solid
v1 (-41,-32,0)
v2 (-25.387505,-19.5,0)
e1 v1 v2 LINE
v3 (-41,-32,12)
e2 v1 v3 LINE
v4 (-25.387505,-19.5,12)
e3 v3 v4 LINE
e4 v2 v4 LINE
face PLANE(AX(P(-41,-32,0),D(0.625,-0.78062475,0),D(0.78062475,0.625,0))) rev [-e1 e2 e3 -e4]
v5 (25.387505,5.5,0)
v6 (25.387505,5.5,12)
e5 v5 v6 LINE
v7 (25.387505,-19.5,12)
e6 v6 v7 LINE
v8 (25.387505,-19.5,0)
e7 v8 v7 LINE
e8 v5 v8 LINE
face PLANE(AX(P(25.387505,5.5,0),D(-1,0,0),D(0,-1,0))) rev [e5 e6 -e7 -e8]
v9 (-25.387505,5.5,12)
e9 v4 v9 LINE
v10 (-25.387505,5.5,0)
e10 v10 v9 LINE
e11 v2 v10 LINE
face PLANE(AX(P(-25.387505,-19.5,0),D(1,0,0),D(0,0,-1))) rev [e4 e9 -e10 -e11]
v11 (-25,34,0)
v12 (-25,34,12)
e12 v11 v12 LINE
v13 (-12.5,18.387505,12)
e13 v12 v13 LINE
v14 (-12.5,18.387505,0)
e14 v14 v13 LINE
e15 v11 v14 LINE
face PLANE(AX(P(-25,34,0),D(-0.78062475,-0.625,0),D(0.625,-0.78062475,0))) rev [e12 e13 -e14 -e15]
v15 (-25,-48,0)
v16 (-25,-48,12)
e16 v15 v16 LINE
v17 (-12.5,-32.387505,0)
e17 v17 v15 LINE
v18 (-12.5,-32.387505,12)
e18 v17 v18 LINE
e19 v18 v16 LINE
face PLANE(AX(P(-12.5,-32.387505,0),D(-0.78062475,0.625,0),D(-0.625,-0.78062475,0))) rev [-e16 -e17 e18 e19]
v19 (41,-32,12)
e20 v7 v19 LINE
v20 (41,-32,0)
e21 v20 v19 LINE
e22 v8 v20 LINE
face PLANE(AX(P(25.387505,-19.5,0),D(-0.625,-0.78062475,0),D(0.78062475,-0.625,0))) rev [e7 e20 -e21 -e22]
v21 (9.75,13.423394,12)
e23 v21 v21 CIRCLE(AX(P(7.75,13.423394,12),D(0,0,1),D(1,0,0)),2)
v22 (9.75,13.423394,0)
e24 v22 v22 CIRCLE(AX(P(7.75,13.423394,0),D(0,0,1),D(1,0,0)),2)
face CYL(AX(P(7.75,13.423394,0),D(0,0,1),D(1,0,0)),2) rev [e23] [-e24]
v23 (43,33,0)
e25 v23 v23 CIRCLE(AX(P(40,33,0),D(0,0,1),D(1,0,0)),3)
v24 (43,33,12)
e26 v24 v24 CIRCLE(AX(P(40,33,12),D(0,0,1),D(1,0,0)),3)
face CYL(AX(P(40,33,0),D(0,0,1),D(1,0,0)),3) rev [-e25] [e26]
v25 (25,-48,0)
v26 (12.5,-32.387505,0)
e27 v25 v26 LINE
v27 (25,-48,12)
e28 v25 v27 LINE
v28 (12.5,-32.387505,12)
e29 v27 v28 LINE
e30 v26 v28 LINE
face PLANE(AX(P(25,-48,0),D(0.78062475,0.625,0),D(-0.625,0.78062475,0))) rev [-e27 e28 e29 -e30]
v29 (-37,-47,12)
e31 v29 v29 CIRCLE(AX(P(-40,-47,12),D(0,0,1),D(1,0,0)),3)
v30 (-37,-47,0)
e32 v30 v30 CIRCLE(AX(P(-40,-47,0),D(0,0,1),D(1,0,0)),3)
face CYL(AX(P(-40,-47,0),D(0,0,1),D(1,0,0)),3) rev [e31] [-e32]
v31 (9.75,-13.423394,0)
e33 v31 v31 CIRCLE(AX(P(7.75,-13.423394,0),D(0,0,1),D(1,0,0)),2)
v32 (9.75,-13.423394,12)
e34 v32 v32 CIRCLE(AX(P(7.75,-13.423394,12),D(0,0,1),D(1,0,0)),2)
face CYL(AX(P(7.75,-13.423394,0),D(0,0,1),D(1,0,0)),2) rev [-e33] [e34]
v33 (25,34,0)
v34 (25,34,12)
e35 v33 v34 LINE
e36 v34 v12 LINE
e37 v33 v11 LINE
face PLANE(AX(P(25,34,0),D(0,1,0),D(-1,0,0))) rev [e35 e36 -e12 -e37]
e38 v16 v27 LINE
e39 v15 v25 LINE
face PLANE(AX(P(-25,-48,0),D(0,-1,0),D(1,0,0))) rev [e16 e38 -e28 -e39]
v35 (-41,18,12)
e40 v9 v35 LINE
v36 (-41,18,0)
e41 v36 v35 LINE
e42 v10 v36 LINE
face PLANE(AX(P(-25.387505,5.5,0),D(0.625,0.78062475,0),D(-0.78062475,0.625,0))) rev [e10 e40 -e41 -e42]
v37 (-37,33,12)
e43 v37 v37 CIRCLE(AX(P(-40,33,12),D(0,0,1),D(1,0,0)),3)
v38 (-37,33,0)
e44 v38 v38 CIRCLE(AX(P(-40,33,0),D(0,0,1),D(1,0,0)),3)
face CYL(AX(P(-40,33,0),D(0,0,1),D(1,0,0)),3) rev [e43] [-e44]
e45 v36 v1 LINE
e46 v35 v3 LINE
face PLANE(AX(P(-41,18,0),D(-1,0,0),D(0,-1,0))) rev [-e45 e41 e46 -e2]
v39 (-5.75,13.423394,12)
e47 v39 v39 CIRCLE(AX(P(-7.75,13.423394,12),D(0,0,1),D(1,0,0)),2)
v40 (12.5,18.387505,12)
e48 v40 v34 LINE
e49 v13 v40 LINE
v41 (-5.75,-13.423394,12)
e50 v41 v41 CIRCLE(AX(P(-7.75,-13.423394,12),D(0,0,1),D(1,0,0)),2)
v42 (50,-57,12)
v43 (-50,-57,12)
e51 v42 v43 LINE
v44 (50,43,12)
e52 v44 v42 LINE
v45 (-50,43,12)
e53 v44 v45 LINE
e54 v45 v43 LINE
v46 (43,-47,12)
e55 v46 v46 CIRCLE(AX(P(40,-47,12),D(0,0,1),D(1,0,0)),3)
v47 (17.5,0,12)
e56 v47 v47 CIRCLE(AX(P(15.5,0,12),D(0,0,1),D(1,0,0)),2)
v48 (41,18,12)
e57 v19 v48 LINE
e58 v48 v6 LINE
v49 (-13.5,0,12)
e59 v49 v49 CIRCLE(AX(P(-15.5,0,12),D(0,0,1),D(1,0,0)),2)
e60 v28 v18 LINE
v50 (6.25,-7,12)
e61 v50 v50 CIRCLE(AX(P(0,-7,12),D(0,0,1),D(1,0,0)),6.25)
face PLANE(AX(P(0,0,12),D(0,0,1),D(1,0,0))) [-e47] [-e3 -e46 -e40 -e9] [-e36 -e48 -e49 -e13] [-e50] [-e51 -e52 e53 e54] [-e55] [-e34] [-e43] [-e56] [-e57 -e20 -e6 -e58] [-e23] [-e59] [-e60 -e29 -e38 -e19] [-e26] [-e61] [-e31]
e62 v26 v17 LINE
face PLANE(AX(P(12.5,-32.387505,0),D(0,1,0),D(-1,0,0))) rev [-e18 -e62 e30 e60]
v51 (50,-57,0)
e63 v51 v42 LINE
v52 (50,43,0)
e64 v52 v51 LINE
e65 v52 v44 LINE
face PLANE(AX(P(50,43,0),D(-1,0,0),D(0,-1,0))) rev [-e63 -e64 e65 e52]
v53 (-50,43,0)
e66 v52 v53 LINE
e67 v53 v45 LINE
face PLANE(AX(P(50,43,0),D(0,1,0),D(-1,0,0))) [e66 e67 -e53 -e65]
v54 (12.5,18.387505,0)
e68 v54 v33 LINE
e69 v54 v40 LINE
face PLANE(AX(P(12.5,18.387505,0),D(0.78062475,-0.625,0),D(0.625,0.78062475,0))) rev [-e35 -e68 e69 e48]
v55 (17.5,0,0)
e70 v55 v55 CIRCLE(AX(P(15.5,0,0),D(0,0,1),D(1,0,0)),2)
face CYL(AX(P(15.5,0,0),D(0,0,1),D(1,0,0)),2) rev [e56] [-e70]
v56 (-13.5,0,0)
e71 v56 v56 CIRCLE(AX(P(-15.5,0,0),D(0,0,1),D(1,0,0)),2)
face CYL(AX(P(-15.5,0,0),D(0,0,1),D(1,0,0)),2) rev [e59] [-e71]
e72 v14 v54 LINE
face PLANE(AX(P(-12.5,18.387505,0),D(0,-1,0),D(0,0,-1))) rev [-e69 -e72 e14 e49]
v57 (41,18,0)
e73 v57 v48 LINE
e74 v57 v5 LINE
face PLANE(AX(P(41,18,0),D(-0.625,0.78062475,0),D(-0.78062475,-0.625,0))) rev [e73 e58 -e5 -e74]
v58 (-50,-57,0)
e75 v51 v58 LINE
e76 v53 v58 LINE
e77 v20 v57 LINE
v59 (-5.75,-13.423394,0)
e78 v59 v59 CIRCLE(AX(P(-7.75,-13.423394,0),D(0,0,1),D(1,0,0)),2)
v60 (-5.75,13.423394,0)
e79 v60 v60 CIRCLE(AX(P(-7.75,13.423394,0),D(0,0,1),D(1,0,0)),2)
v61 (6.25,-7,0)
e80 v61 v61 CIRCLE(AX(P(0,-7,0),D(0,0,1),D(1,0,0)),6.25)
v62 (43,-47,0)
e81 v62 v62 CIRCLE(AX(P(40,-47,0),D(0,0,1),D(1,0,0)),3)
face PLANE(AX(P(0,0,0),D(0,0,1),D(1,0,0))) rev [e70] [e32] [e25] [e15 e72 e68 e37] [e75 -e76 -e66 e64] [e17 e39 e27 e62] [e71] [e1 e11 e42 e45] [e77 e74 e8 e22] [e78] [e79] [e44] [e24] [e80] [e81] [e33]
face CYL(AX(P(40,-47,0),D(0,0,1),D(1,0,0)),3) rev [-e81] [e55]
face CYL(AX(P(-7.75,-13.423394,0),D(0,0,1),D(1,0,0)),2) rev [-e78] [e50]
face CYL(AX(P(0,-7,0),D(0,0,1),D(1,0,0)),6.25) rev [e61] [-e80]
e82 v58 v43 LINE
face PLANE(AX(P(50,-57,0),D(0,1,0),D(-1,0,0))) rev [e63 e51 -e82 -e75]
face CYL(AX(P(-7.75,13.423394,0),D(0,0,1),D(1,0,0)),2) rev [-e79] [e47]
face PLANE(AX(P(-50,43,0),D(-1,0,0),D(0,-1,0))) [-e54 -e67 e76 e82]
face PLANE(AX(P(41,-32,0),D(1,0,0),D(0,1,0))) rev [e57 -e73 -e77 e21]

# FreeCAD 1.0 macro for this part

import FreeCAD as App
import Part
import Sketcher

V = App.Vector


def add_polygon(sketch, points):
    """Adds a closed chain of lines whose ends are joined by coincident constraints."""
    first, n = sketch.GeometryCount, len(points)
    for a, b in zip(points, points[1:] + points[:1]):
        sketch.addGeometry(Part.LineSegment(App.Vector(*a, 0), App.Vector(*b, 0)), False)
    for i in range(n):
        sketch.addConstraint(Sketcher.Constraint("Coincident", first + i, 2, first + (i + 1) % n, 1))

doc = App.newDocument("Part")
body = doc.addObject("PartDesign::Body", "Body")

# Sketch on XY plane
sketch1 = body.newObject("Sketcher::SketchObject", "Sketch")
sketch1.AttachmentSupport = (doc.getObject("XY_Plane"), [""])
sketch1.MapMode = "FlatFace"
sketch1.addGeometry(Part.Circle(V(0, 0, 0), V(0, 0, 1), 18), False)
sketch1.addConstraint(Sketcher.Constraint("Coincident", 0, 3, -1, 1))
sketch1.addConstraint(Sketcher.Constraint("Diameter", 0, 37.0))
pad1 = body.newObject("PartDesign::Pad", "Pad")
pad1.Profile = sketch1
pad1.Length = 12

# Sketch on XY plane
sketch2 = body.newObject("Sketcher::SketchObject", "Sketch001")
sketch2.AttachmentSupport = (doc.getObject("XY_Plane"), [""])
sketch2.MapMode = "FlatFace"
sketch2.AttachmentOffset = App.Placement(V(0, 0, 12), App.Rotation())
sketch2.addGeometry(Part.Circle(V(15.5, 0, 0), V(0, 0, 1), 2), False)
sketch2.addGeometry(Part.Circle(V(7.8, -13.4, 0), V(0, 0, 1), 2), False)
sketch2.addGeometry(Part.Circle(V(-7.8, -13.4, 0), V(0, 0, 1), 2), False)
sketch2.addGeometry(Part.Circle(V(-15.5, 0, 0), V(0, 0, 1), 2), False)
sketch2.addGeometry(Part.Circle(V(-7.8, 13.4, 0), V(0, 0, 1), 2), False)
sketch2.addGeometry(Part.Circle(V(7.8, 13.4, 0), V(0, 0, 1), 2), False)
sketch2.addConstraint(Sketcher.Constraint("Equal", 0, 1))
sketch2.addConstraint(Sketcher.Constraint("Equal", 1, 2))
sketch2.addConstraint(Sketcher.Constraint("Equal", 2, 3))
sketch2.addConstraint(Sketcher.Constraint("Equal", 3, 4))
sketch2.addConstraint(Sketcher.Constraint("Equal", 4, 5))
sketch2.addConstraint(Sketcher.Constraint("Symmetric", 0, 3, 3, 3, -1, 1))
sketch2.addConstraint(Sketcher.Constraint("Symmetric", 1, 3, 4, 3, -1, 1))
sketch2.addConstraint(Sketcher.Constraint("Symmetric", 2, 3, 5, 3, -1, 1))
sketch2.addConstraint(Sketcher.Constraint("Symmetric", 1, 3, 2, 3, -2))
sketch2.addConstraint(Sketcher.Constraint("PointOnObject", 0, 3, -1))
sketch2.addConstraint(Sketcher.Constraint("Diameter", 0, 4.0))
sketch2.addConstraint(Sketcher.Constraint("DistanceX", 3, 3, 0, 3, 31.0))
sketch2.addConstraint(Sketcher.Constraint("DistanceX", 2, 3, 1, 3, 15.5))
sketch2.addConstraint(Sketcher.Constraint("DistanceY", 1, 3, -1, 1, 13.423394))
pocket1 = body.newObject("PartDesign::Pocket", "Pocket")
pocket1.Profile = sketch2
pocket1.Type = "ThroughAll"

# Sketch on XY plane
sketch3 = body.newObject("Sketcher::SketchObject", "Sketch002")
sketch3.AttachmentSupport = (doc.getObject("XY_Plane"), [""])
sketch3.MapMode = "FlatFace"
sketch3.AttachmentOffset = App.Placement(V(0, 0, 12), App.Rotation())
sketch3.addGeometry(Part.Circle(V(0, -7, 0), V(0, 0, 1), 6), False)
sketch3.addConstraint(Sketcher.Constraint("PointOnObject", 0, 3, -2))
sketch3.addConstraint(Sketcher.Constraint("Diameter", 0, 12.5))
sketch3.addConstraint(Sketcher.Constraint("DistanceY", 0, 3, -1, 1, 7.0))
pocket2 = body.newObject("PartDesign::Pocket", "Pocket001")
pocket2.Profile = sketch3
pocket2.Type = "ThroughAll"

# Sketch on XY plane
sketch4 = body.newObject("Sketcher::SketchObject", "Sketch003")
sketch4.AttachmentSupport = (doc.getObject("XY_Plane"), [""])
sketch4.MapMode = "FlatFace"
sketch4.AttachmentOffset = App.Placement(V(0, 0, 12), App.Rotation())
add_polygon(sketch4, [(-50, 43), (-50, -57), (50, -57), (50, 43)])  # lines 0-3
sketch4.addGeometry(Part.Circle(V(0, 0, 0), V(0, 0, 1), 18), False)  # 4
sketch4.addConstraint(Sketcher.Constraint("Vertical", 0))
sketch4.addConstraint(Sketcher.Constraint("Horizontal", 1))
sketch4.addConstraint(Sketcher.Constraint("Vertical", 2))
sketch4.addConstraint(Sketcher.Constraint("Horizontal", 3))
sketch4.addConstraint(Sketcher.Constraint("Coincident", 4, 3, -1, 1))
sketch4.addConstraint(Sketcher.Constraint("Equal", 3, 0))
sketch4.addConstraint(Sketcher.Constraint("Diameter", 4, 37.0))
sketch4.addConstraint(Sketcher.Constraint("DistanceX", 1, 1, 1, 2, 100.0))
sketch4.addConstraint(Sketcher.Constraint("DistanceX", 0, 2, -1, 1, 50.0))
sketch4.addConstraint(Sketcher.Constraint("DistanceY", 0, 2, -1, 1, 57.0))
pad2 = body.newObject("PartDesign::Pad", "Pad001")
pad2.Profile = sketch4
pad2.Length = 12
pad2.Reversed = True

# Sketch on XY plane
sketch5 = body.newObject("Sketcher::SketchObject", "Sketch004")
sketch5.AttachmentSupport = (doc.getObject("XY_Plane"), [""])
sketch5.MapMode = "FlatFace"
sketch5.AttachmentOffset = App.Placement(V(0, 0, 12), App.Rotation())
sketch5.addGeometry(Part.Circle(V(-40, 33, 0), V(0, 0, 1), 3), False)
sketch5.addGeometry(Part.Circle(V(40, 33, 0), V(0, 0, 1), 3), False)
sketch5.addGeometry(Part.Circle(V(40, -47, 0), V(0, 0, 1), 3), False)
sketch5.addGeometry(Part.Circle(V(-40, -47, 0), V(0, 0, 1), 3), False)
sketch5.addConstraint(Sketcher.Constraint("Equal", 0, 1))
sketch5.addConstraint(Sketcher.Constraint("Equal", 1, 2))
sketch5.addConstraint(Sketcher.Constraint("Equal", 2, 3))
sketch5.addConstraint(Sketcher.Constraint("Symmetric", 0, 3, 1, 3, -2))
sketch5.addConstraint(Sketcher.Constraint("Symmetric", 2, 3, 3, 3, -2))
sketch5.addConstraint(Sketcher.Constraint("Vertical", 1, 3, 2, 3))
sketch5.addConstraint(Sketcher.Constraint("Diameter", 0, 6.0))
sketch5.addConstraint(Sketcher.Constraint("DistanceX", 0, 3, -1, 1, 40.0))
sketch5.addConstraint(Sketcher.Constraint("DistanceY", -1, 1, 0, 3, 33.0))
sketch5.addConstraint(Sketcher.Constraint("DistanceY", 2, 3, -1, 1, 47.0))
pocket3 = body.newObject("PartDesign::Pocket", "Pocket002")
pocket3.Profile = sketch5
pocket3.Length = 12

# Sketch on XY plane
sketch6 = body.newObject("Sketcher::SketchObject", "Sketch005")
sketch6.AttachmentSupport = (doc.getObject("XY_Plane"), [""])
sketch6.MapMode = "FlatFace"
sketch6.AttachmentOffset = App.Placement(V(0, 0, 12), App.Rotation())
add_polygon(sketch6, [(-41, 18), (-41, -32), (-25, -20), (-25, 6)])  # lines 0-3
add_polygon(sketch6, [(12, 18), (25, 34), (-25, 34), (-12, 18)])  # lines 4-7
add_polygon(sketch6, [(25, -20), (41, -32), (41, 18), (25, 6)])  # lines 8-11
add_polygon(sketch6, [(-12, -32), (-25, -48), (25, -48), (12, -32)])  # lines 12-15
sketch6.addConstraint(Sketcher.Constraint("Vertical", 0))
sketch6.addConstraint(Sketcher.Constraint("Vertical", 2))
sketch6.addConstraint(Sketcher.Constraint("Horizontal", 5))
sketch6.addConstraint(Sketcher.Constraint("Horizontal", 7))
sketch6.addConstraint(Sketcher.Constraint("Vertical", 9))
sketch6.addConstraint(Sketcher.Constraint("Vertical", 11))
sketch6.addConstraint(Sketcher.Constraint("Horizontal", 13))
sketch6.addConstraint(Sketcher.Constraint("Horizontal", 15))
sketch6.addConstraint(Sketcher.Constraint("Symmetric", 0, 2, 8, 2, -2))
sketch6.addConstraint(Sketcher.Constraint("Symmetric", 2, 2, 10, 2, -2))
sketch6.addConstraint(Sketcher.Constraint("Perpendicular", 3, 4))
sketch6.addConstraint(Sketcher.Constraint("Perpendicular", 1, 6))
sketch6.addConstraint(Sketcher.Constraint("Perpendicular", 4, 8))
sketch6.addConstraint(Sketcher.Constraint("Perpendicular", 6, 10))
sketch6.addConstraint(Sketcher.Constraint("Perpendicular", 8, 12))
sketch6.addConstraint(Sketcher.Constraint("Perpendicular", 10, 14))
sketch6.addConstraint(Sketcher.Constraint("Horizontal", 3, 2, 9, 2))
sketch6.addConstraint(Sketcher.Constraint("Vertical", 5, 2, 12, 2))
sketch6.addConstraint(Sketcher.Constraint("Vertical", 4, 2, 13, 2))
sketch6.addConstraint(Sketcher.Constraint("Vertical", 7, 2, 14, 2))
sketch6.addConstraint(Sketcher.Constraint("Equal", 13, 0))
sketch6.addConstraint(Sketcher.Constraint("Equal", 15, 2))
sketch6.addConstraint(Sketcher.Constraint("DistanceX", 5, 2, 5, 1, 50.0))
sketch6.addConstraint(Sketcher.Constraint("DistanceX", 7, 1, 7, 2, 25.0))
sketch6.addConstraint(Sketcher.Constraint("Distance", 1, 20.0))
sketch6.addConstraint(Sketcher.Constraint("DistanceX", 0, 2, -1, 1, 41.0))
sketch6.addConstraint(Sketcher.Constraint("DistanceY", 0, 2, -1, 1, 32.0))
sketch6.addConstraint(Sketcher.Constraint("DistanceX", -1, 1, 4, 2, 25.0))
sketch6.addConstraint(Sketcher.Constraint("DistanceY", -1, 1, 4, 2, 34.0))
sketch6.addConstraint(Sketcher.Constraint("DistanceY", 12, 2, -1, 1, 48.0))
pocket4 = body.newObject("PartDesign::Pocket", "Pocket003")
pocket4.Profile = sketch6
pocket4.Length = 12

doc.recompute()
